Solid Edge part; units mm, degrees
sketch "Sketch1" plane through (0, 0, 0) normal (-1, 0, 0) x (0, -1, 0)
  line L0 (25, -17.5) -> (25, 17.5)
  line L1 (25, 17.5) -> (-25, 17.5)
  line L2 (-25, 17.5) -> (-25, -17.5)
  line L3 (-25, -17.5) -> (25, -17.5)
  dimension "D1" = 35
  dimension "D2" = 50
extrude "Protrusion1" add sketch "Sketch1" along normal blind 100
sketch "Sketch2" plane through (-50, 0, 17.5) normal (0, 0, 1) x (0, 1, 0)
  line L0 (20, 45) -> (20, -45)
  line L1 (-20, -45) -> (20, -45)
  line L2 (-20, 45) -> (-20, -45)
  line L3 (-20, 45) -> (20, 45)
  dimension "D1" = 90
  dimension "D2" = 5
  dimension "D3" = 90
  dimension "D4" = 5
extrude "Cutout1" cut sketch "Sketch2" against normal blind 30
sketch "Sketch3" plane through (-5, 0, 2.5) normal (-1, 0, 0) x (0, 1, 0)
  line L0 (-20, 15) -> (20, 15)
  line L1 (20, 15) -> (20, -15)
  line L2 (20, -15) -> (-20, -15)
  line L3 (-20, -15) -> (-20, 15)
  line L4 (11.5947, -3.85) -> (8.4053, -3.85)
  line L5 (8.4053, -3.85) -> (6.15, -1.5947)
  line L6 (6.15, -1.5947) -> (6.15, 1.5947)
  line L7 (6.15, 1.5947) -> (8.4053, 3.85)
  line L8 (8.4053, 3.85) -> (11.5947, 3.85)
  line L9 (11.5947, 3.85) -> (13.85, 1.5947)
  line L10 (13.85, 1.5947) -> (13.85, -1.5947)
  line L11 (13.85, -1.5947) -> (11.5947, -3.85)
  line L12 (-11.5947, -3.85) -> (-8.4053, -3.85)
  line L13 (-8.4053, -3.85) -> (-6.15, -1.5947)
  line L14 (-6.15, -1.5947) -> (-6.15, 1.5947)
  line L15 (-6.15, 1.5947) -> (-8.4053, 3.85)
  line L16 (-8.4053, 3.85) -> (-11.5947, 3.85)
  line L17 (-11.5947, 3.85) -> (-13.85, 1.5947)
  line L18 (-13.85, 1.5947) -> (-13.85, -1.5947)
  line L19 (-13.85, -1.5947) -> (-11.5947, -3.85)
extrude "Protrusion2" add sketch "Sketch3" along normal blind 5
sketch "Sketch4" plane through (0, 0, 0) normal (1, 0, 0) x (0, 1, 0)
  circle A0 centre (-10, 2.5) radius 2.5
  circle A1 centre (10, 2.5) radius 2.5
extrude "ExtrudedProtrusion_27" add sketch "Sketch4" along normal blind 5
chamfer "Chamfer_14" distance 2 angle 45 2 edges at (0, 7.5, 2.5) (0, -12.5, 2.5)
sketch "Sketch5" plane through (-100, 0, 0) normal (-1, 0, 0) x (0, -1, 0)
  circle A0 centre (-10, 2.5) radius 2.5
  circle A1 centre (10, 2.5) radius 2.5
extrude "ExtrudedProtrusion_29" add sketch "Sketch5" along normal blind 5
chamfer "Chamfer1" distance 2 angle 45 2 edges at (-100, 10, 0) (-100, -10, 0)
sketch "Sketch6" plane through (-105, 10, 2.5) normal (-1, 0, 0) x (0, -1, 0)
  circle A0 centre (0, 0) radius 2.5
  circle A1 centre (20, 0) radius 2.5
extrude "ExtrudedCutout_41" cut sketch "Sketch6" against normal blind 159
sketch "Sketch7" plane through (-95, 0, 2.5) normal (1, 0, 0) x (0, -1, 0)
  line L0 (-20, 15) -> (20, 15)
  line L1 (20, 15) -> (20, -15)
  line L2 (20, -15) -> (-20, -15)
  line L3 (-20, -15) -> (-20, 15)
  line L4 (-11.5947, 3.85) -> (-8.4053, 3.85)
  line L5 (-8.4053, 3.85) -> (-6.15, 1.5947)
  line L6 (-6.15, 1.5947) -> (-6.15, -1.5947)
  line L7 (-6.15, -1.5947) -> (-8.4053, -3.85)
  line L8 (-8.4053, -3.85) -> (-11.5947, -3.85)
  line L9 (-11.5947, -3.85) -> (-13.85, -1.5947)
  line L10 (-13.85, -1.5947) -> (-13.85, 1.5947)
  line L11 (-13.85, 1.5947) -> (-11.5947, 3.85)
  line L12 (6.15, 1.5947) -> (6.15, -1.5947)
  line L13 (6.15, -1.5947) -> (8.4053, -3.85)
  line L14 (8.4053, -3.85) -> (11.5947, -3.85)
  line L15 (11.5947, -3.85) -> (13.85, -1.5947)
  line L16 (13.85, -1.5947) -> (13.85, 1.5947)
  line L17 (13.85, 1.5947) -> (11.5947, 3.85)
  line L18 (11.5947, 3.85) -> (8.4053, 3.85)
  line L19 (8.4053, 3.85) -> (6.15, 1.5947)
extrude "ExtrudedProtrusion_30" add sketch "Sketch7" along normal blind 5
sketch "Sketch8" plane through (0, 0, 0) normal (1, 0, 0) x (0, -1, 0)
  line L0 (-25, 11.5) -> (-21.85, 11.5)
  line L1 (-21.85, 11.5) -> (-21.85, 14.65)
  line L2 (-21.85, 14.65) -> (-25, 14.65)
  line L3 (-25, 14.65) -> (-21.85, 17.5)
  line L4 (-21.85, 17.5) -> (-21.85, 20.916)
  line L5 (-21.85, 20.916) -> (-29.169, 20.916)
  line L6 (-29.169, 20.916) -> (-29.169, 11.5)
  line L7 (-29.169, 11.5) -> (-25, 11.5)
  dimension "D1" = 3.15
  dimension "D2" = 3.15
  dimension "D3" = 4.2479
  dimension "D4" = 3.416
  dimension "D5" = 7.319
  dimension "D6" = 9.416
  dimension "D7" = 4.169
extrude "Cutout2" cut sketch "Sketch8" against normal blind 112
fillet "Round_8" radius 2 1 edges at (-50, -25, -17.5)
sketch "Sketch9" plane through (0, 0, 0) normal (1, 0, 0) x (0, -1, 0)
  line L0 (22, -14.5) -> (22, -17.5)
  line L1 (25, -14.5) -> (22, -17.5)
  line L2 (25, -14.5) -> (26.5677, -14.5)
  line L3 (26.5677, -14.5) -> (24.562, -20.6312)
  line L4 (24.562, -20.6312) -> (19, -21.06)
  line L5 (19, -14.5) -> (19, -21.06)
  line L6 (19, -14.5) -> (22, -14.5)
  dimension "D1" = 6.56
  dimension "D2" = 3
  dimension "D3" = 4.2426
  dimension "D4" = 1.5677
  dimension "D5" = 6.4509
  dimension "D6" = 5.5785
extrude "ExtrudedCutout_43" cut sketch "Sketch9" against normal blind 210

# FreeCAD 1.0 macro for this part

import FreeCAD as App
import Part
import Sketcher

V = App.Vector
Q = App.Units.Quantity


def edges_at(feature, points):
    """Names of the edges that pass closest to the given points."""
    edges = feature.Shape.Edges
    near = lambda p: min(range(len(edges)), key=lambda i: edges[i].distToShape(Part.Vertex(*p))[0])
    return sorted({f"Edge{near(p) + 1}" for p in points})


def add_polygon(sketch, points):
    """Adds a closed chain of lines whose ends are joined by coincident constraints."""
    first, n = sketch.GeometryCount, len(points)
    for a, b in zip(points, points[1:] + points[:1]):
        sketch.addGeometry(Part.LineSegment(App.Vector(*a, 0), App.Vector(*b, 0)), False)
    for i in range(n):
        sketch.addConstraint(Sketcher.Constraint("Coincident", first + i, 2, first + (i + 1) % n, 1))

doc = App.newDocument("Part")
params = doc.addObject("Spreadsheet::Sheet", "Params")
for row, (alias, value) in enumerate([
    ("sketch1_width", "50 mm"),
    ("sketch1_height", "35 mm"),
    ("pad1_length", "100 mm"),
    ("sketch2_width", "90 mm"),
    ("sketch2_height", "40 mm"),
    ("pocket1_length", "30 mm"),
    ("sketch3_width", "40 mm"),
    ("sketch3_height", "30 mm"),
    ("pad2_length", "5 mm"),
    ("sketch4_diameter", "5 mm"),
    ("pad3_length", "5 mm"),
    ("chamfer_size", "2 mm"),
    ("sketch5_diameter", "5 mm"),
    ("pad4_length", "5 mm"),
    ("chamfer2_size", "2 mm"),
    ("sketch6_diameter", "5 mm"),
    ("pocket2_length", "159 mm"),
    ("sketch7_width", "40 mm"),
    ("sketch7_height", "30 mm"),
    ("pad5_length", "5 mm"),
    ("sketch8_width", "3.15 mm"),
    ("pocket3_length", "112 mm"),
    ("fillet_radius", "2 mm"),
    ("sketch9_width", "3 mm"),
    ("sketch9_height", "6.56 mm"),
    ("pocket4_length", "210 mm"),
], start=1):
    params.set(f"A{row}", alias)
    params.set(f"B{row}", "=" + value)
    params.setAlias(f"B{row}", alias)

body = doc.addObject("PartDesign::Body", "Body")

# Sketch on YZ plane
sketch1 = body.newObject("Sketcher::SketchObject", "Sketch")
sketch1.AttachmentSupport = (doc.getObject("YZ_Plane"), [""])
sketch1.MapMode = "FlatFace"
add_polygon(sketch1, [(25, -18), (-25, -18), (-25, 18), (25, 18)])  # lines 0-3
sketch1.addConstraint([
    Sketcher.Constraint("Horizontal", 0),
    Sketcher.Constraint("Vertical", 1),
    Sketcher.Constraint("Horizontal", 2),
    Sketcher.Constraint("Vertical", 3),
    Sketcher.Constraint("Symmetric", 0, 2, 2, 2, -1, 1),
    Sketcher.Constraint("DistanceX", 0, 2, 0, 1, 50.0),
    Sketcher.Constraint("DistanceY", 1, 1, 1, 2, 35.0),
])
sketch1.setExpression("Constraints[9]", "Params.sketch1_width")
sketch1.setExpression("Constraints[10]", "Params.sketch1_height")
pad1 = body.newObject("PartDesign::Pad", "Pad")
pad1.Profile = sketch1
pad1.setExpression("Length", "Params.pad1_length")
pad1.Reversed = True

# Sketch on XY plane
sketch2 = body.newObject("Sketcher::SketchObject", "Sketch001")
sketch2.AttachmentSupport = (doc.getObject("XY_Plane"), [""])
sketch2.MapMode = "FlatFace"
sketch2.AttachmentOffset = App.Placement(V(0, 0, 17.5), App.Rotation())
add_polygon(sketch2, [(-5, 20), (-95, 20), (-95, -20), (-5, -20)])  # lines 0-3
sketch2.addConstraint([
    Sketcher.Constraint("Horizontal", 0),
    Sketcher.Constraint("Vertical", 1),
    Sketcher.Constraint("Horizontal", 2),
    Sketcher.Constraint("Vertical", 3),
    Sketcher.Constraint("DistanceX", 0, 2, 0, 1, 90.0),
    Sketcher.Constraint("DistanceY", 1, 2, 1, 1, 40.0),
    Sketcher.Constraint("DistanceX", 0, 2, -1, 1, 95.0),
    Sketcher.Constraint("DistanceY", -1, 1, 0, 2, 20.0),
])
sketch2.setExpression("Constraints[8]", "Params.sketch2_width")
sketch2.setExpression("Constraints[9]", "Params.sketch2_height")
pocket1 = body.newObject("PartDesign::Pocket", "Pocket")
pocket1.Profile = sketch2
pocket1.setExpression("Length", "Params.pocket1_length")

# Sketch on YZ plane
sketch3 = body.newObject("Sketcher::SketchObject", "Sketch002")
sketch3.AttachmentSupport = (doc.getObject("YZ_Plane"), [""])
sketch3.MapMode = "FlatFace"
sketch3.AttachmentOffset = App.Placement(V(0, 0, -5), App.Rotation())
add_polygon(sketch3, [(20, -12.5), (-20, -12.5), (-20, 17.5), (20, 17.5)])  # lines 0-3
add_polygon(sketch3, [(-8.4, 6.3), (-11.6, 6.3), (-13.8, 4.1), (-13.8, 0.9), (-11.6, -1.4), (-8.4, -1.4), (-6.2, 0.9), (-6.2, 4.1)])  # lines 4-11
add_polygon(sketch3, [(13.8, 4.1), (11.6, 6.3), (8.4, 6.3), (6.2, 4.1), (6.2, 0.9), (8.4, -1.4), (11.6, -1.4), (13.8, 0.9)])  # lines 12-19
sketch3.addConstraint([
    Sketcher.Constraint("Horizontal", 0),
    Sketcher.Constraint("Vertical", 1),
    Sketcher.Constraint("Horizontal", 2),
    Sketcher.Constraint("Vertical", 3),
    Sketcher.Constraint("Horizontal", 4),
    Sketcher.Constraint("Vertical", 6),
    Sketcher.Constraint("Horizontal", 8),
    Sketcher.Constraint("Vertical", 10),
    Sketcher.Constraint("Horizontal", 13),
    Sketcher.Constraint("Vertical", 15),
    Sketcher.Constraint("Horizontal", 17),
    Sketcher.Constraint("Vertical", 19),
    Sketcher.Constraint("Symmetric", 4, 2, 12, 2, -2),
    Sketcher.Constraint("Symmetric", 10, 2, 14, 2, -2),
    Sketcher.Constraint("Symmetric", 8, 2, 16, 2, -2),
    Sketcher.Constraint("Symmetric", 6, 2, 18, 2, -2),
    Sketcher.Constraint("Perpendicular", 5, 7),
    Sketcher.Constraint("Perpendicular", 7, 9),
    Sketcher.Constraint("Perpendicular", 9, 11),
    Sketcher.Constraint("Parallel", 11, 12),
    Sketcher.Constraint("Perpendicular", 12, 14),
    Sketcher.Constraint("Perpendicular", 14, 16),
    Sketcher.Constraint("Perpendicular", 16, 18),
    Sketcher.Constraint("Horizontal", 6, 2, 9, 2),
    Sketcher.Constraint("Horizontal", 5, 2, 10, 2),
    Sketcher.Constraint("Horizontal", 9, 2, 15, 2),
    Sketcher.Constraint("Vertical", 4, 2, 7, 2),
    Sketcher.Constraint("Equal", 17, 6),
    Sketcher.Constraint("DistanceX", 0, 2, 0, 1, 40.0),
    Sketcher.Constraint("DistanceY", 1, 1, 1, 2, 30.0),
    Sketcher.Constraint("DistanceX", 0, 2, -1, 1, 20.0),
    Sketcher.Constraint("DistanceX", 11, 2, 12, 2, 20.0),
    Sketcher.Constraint("DistanceY", 0, 2, -1, 1, 12.5),
    Sketcher.Constraint("DistanceY", 7, 2, 4, 2, 7.7),
    Sketcher.Constraint("DistanceY", -1, 1, 4, 2, 6.35),
    Sketcher.Constraint("DistanceX", 4, 2, 4, 1, 3.1894),
])
sketch3.setExpression("Constraints[48]", "Params.sketch3_width")
sketch3.setExpression("Constraints[49]", "Params.sketch3_height")
pad2 = body.newObject("PartDesign::Pad", "Pad001")
pad2.Profile = sketch3
pad2.setExpression("Length", "Params.pad2_length")
pad2.Reversed = True

# Sketch on YZ plane
sketch4 = body.newObject("Sketcher::SketchObject", "Sketch003")
sketch4.AttachmentSupport = (doc.getObject("YZ_Plane"), [""])
sketch4.MapMode = "FlatFace"
sketch4.addGeometry([
    Part.Circle(V(-10, 2.5, 0), V(0, 0, 1), 2.5),
    Part.Circle(V(10, 2.5, 0), V(0, 0, 1), 2.5),
], False)
sketch4.addConstraint([
    Sketcher.Constraint("Equal", 0, 1),
    Sketcher.Constraint("Symmetric", 0, 3, 1, 3, -2),
    Sketcher.Constraint("Diameter", 0, 5.0),
    Sketcher.Constraint("DistanceX", 0, 3, -1, 1, 10.0),
    Sketcher.Constraint("DistanceY", -1, 1, 0, 3, 2.5),
])
sketch4.setExpression("Constraints[2]", "Params.sketch4_diameter")
pad3 = body.newObject("PartDesign::Pad", "Pad002")
pad3.Profile = sketch4
pad3.setExpression("Length", "Params.pad3_length")
doc.recompute()

chamfer = body.newObject("PartDesign::Chamfer", "Chamfer")
chamfer.Base = (pad3, edges_at(pad3, [(0, 7.5, 2.5), (0, -12.5, 2.5)]))
chamfer.setExpression("Size", "Params.chamfer_size")

# Sketch on YZ plane
sketch5 = body.newObject("Sketcher::SketchObject", "Sketch004")
sketch5.AttachmentSupport = (doc.getObject("YZ_Plane"), [""])
sketch5.MapMode = "FlatFace"
sketch5.AttachmentOffset = App.Placement(V(0, 0, -100), App.Rotation())
sketch5.addGeometry([
    Part.Circle(V(10, 2.5, 0), V(0, 0, 1), 2.5),
    Part.Circle(V(-10, 2.5, 0), V(0, 0, 1), 2.5),
], False)
sketch5.addConstraint([
    Sketcher.Constraint("Equal", 0, 1),
    Sketcher.Constraint("Symmetric", 0, 3, 1, 3, -2),
    Sketcher.Constraint("Diameter", 0, 5.0),
    Sketcher.Constraint("DistanceX", -1, 1, 0, 3, 10.0),
    Sketcher.Constraint("DistanceY", -1, 1, 0, 3, 2.5),
])
sketch5.setExpression("Constraints[2]", "Params.sketch5_diameter")
pad4 = body.newObject("PartDesign::Pad", "Pad003")
pad4.Profile = sketch5
pad4.setExpression("Length", "Params.pad4_length")
pad4.Reversed = True
doc.recompute()

chamfer2 = body.newObject("PartDesign::Chamfer", "Chamfer001")
chamfer2.Base = (pad4, edges_at(pad4, [(-100, 10, 0), (-100, -10, 0)]))
chamfer2.setExpression("Size", "Params.chamfer2_size")

# Sketch on YZ plane
sketch6 = body.newObject("Sketcher::SketchObject", "Sketch005")
sketch6.AttachmentSupport = (doc.getObject("YZ_Plane"), [""])
sketch6.MapMode = "FlatFace"
sketch6.AttachmentOffset = App.Placement(V(0, 0, -105), App.Rotation())
sketch6.addGeometry([
    Part.Circle(V(10, 2.5, 0), V(0, 0, 1), 2.5),
    Part.Circle(V(-10, 2.5, 0), V(0, 0, 1), 2.5),
], False)
sketch6.addConstraint([
    Sketcher.Constraint("Equal", 0, 1),
    Sketcher.Constraint("Symmetric", 0, 3, 1, 3, -2),
    Sketcher.Constraint("Diameter", 0, 5.0),
    Sketcher.Constraint("DistanceX", -1, 1, 0, 3, 10.0),
    Sketcher.Constraint("DistanceY", -1, 1, 0, 3, 2.5),
])
sketch6.setExpression("Constraints[2]", "Params.sketch6_diameter")
pocket2 = body.newObject("PartDesign::Pocket", "Pocket001")
pocket2.Profile = sketch6
pocket2.setExpression("Length", "Params.pocket2_length")
pocket2.Reversed = True

# Sketch on YZ plane
sketch7 = body.newObject("Sketcher::SketchObject", "Sketch006")
sketch7.AttachmentSupport = (doc.getObject("YZ_Plane"), [""])
sketch7.MapMode = "FlatFace"
sketch7.AttachmentOffset = App.Placement(V(0, 0, -95), App.Rotation())
add_polygon(sketch7, [(-20, -12.5), (20, -12.5), (20, 17.5), (-20, 17.5)])  # lines 0-3
add_polygon(sketch7, [(13.8, 0.9), (11.6, -1.4), (8.4, -1.4), (6.2, 0.9), (6.2, 4.1), (8.4, 6.3), (11.6, 6.3), (13.8, 4.1)])  # lines 4-11
add_polygon(sketch7, [(-6.2, 4.1), (-6.2, 0.9), (-8.4, -1.4), (-11.6, -1.4), (-13.8, 0.9), (-13.8, 4.1), (-11.6, 6.3), (-8.4, 6.3)])  # lines 12-19
sketch7.addConstraint([
    Sketcher.Constraint("Horizontal", 0),
    Sketcher.Constraint("Vertical", 1),
    Sketcher.Constraint("Horizontal", 2),
    Sketcher.Constraint("Vertical", 3),
    Sketcher.Constraint("Horizontal", 5),
    Sketcher.Constraint("Vertical", 7),
    Sketcher.Constraint("Horizontal", 9),
    Sketcher.Constraint("Vertical", 11),
    Sketcher.Constraint("Vertical", 12),
    Sketcher.Constraint("Horizontal", 14),
    Sketcher.Constraint("Vertical", 16),
    Sketcher.Constraint("Horizontal", 18),
    Sketcher.Constraint("Symmetric", 6, 2, 12, 2, -2),
    Sketcher.Constraint("Symmetric", 5, 2, 13, 2, -2),
    Sketcher.Constraint("Symmetric", 11, 2, 15, 2, -2),
    Sketcher.Constraint("Symmetric", 9, 2, 17, 2, -2),
    Sketcher.Constraint("Perpendicular", 4, 6),
    Sketcher.Constraint("Perpendicular", 6, 8),
    Sketcher.Constraint("Perpendicular", 8, 10),
    Sketcher.Constraint("Perpendicular", 10, 13),
    Sketcher.Constraint("Perpendicular", 13, 15),
    Sketcher.Constraint("Perpendicular", 15, 17),
    Sketcher.Constraint("Perpendicular", 17, 19),
    Sketcher.Constraint("Horizontal", 7, 2, 10, 2),
    Sketcher.Constraint("Horizontal", 6, 2, 11, 2),
    Sketcher.Constraint("Horizontal", 16, 2, 19, 2),
    Sketcher.Constraint("Vertical", 5, 2, 8, 2),
    Sketcher.Constraint("Equal", 18, 7),
    Sketcher.Constraint("DistanceX", 0, 1, 0, 2, 40.0),
    Sketcher.Constraint("DistanceY", 1, 1, 1, 2, 30.0),
    Sketcher.Constraint("DistanceX", -1, 1, 0, 2, 20.0),
    Sketcher.Constraint("DistanceY", 0, 2, -1, 1, 12.5),
    Sketcher.Constraint("DistanceY", 5, 2, 8, 2, 7.7),
    Sketcher.Constraint("DistanceX", 12, 2, 6, 2, 12.3),
    Sketcher.Constraint("DistanceY", 4, 2, -1, 1, 1.35),
    Sketcher.Constraint("DistanceX", 5, 2, 5, 1, 3.1894),
])
sketch7.setExpression("Constraints[48]", "Params.sketch7_width")
sketch7.setExpression("Constraints[49]", "Params.sketch7_height")
pad5 = body.newObject("PartDesign::Pad", "Pad004")
pad5.Profile = sketch7
pad5.setExpression("Length", "Params.pad5_length")

# Sketch on YZ plane
sketch8 = body.newObject("Sketcher::SketchObject", "Sketch007")
sketch8.AttachmentSupport = (doc.getObject("YZ_Plane"), [""])
sketch8.MapMode = "FlatFace"
add_polygon(sketch8, [(29.2, -11.5), (21.9, -11.5), (21.9, -14.7), (25, -14.7), (21.9, -17.5), (21.9, -20.9), (29.2, -20.9)])  # lines 0-6
sketch8.addConstraint([
    Sketcher.Constraint("Horizontal", 0),
    Sketcher.Constraint("Vertical", 1),
    Sketcher.Constraint("Horizontal", 2),
    Sketcher.Constraint("Vertical", 4),
    Sketcher.Constraint("Horizontal", 5),
    Sketcher.Constraint("Vertical", 6),
    Sketcher.Constraint("Vertical", 1, 2, 3, 2),
    Sketcher.Constraint("Equal", 2, 1),
    Sketcher.Constraint("DistanceX", -1, 1, 2, 2, 25.0),
    Sketcher.Constraint("DistanceY", 3, 2, 0, 2, 6.0),
    Sketcher.Constraint("DistanceX", 2, 1, 2, 2, 3.15),
    Sketcher.Constraint("DistanceY", 0, 2, -1, 1, 11.5),
    Sketcher.Constraint("DistanceX", 0, 2, 0, 1, 7.319),
    Sketcher.Constraint("DistanceY", 4, 2, 4, 1, 3.416),
])
sketch8.setExpression("Constraints[17]", "Params.sketch8_width")
pocket3 = body.newObject("PartDesign::Pocket", "Pocket002")
pocket3.Profile = sketch8
pocket3.setExpression("Length", "Params.pocket3_length")
doc.recompute()

fillet = body.newObject("PartDesign::Fillet", "Fillet")
fillet.Base = (pocket3, edges_at(pocket3, [(-50, -25, -17.5)]))
fillet.setExpression("Radius", "Params.fillet_radius")

# Sketch on YZ plane
sketch9 = body.newObject("Sketcher::SketchObject", "Sketch008")
sketch9.AttachmentSupport = (doc.getObject("YZ_Plane"), [""])
sketch9.MapMode = "FlatFace"
add_polygon(sketch9, [(-22, 17.5), (-22, 14.5), (-19, 14.5), (-19, 21.1), (-24.6, 20.6), (-26.6, 14.5), (-25, 14.5)])  # lines 0-6
sketch9.addConstraint([
    Sketcher.Constraint("Vertical", 0),
    Sketcher.Constraint("Horizontal", 1),
    Sketcher.Constraint("Vertical", 2),
    Sketcher.Constraint("Horizontal", 5),
    Sketcher.Constraint("Horizontal", 1, 2, 4, 2),
    Sketcher.Constraint("Equal", 1, 0),
    Sketcher.Constraint("DistanceX", 1, 1, 1, 2, 3.0),
    Sketcher.Constraint("Angle", 6, Q("45 deg")),
    Sketcher.Constraint("DistanceX", 0, 2, -1, 1, 22.0),
    Sketcher.Constraint("DistanceY", 2, 1, 2, 2, 6.56),
    Sketcher.Constraint("DistanceY", -1, 1, 0, 2, 14.5),
    Sketcher.Constraint("Distance", 4, 6.451),
    Sketcher.Constraint("DistanceX", 5, 1, 5, 2, 1.5677),
    Sketcher.Constraint("DistanceX", 3, 2, -1, 1, 24.562),
])
sketch9.setExpression("Constraints[13]", "Params.sketch9_width")
sketch9.setExpression("Constraints[16]", "Params.sketch9_height")
pocket4 = body.newObject("PartDesign::Pocket", "Pocket003")
pocket4.Profile = sketch9
pocket4.setExpression("Length", "Params.pocket4_length")

doc.recompute()
